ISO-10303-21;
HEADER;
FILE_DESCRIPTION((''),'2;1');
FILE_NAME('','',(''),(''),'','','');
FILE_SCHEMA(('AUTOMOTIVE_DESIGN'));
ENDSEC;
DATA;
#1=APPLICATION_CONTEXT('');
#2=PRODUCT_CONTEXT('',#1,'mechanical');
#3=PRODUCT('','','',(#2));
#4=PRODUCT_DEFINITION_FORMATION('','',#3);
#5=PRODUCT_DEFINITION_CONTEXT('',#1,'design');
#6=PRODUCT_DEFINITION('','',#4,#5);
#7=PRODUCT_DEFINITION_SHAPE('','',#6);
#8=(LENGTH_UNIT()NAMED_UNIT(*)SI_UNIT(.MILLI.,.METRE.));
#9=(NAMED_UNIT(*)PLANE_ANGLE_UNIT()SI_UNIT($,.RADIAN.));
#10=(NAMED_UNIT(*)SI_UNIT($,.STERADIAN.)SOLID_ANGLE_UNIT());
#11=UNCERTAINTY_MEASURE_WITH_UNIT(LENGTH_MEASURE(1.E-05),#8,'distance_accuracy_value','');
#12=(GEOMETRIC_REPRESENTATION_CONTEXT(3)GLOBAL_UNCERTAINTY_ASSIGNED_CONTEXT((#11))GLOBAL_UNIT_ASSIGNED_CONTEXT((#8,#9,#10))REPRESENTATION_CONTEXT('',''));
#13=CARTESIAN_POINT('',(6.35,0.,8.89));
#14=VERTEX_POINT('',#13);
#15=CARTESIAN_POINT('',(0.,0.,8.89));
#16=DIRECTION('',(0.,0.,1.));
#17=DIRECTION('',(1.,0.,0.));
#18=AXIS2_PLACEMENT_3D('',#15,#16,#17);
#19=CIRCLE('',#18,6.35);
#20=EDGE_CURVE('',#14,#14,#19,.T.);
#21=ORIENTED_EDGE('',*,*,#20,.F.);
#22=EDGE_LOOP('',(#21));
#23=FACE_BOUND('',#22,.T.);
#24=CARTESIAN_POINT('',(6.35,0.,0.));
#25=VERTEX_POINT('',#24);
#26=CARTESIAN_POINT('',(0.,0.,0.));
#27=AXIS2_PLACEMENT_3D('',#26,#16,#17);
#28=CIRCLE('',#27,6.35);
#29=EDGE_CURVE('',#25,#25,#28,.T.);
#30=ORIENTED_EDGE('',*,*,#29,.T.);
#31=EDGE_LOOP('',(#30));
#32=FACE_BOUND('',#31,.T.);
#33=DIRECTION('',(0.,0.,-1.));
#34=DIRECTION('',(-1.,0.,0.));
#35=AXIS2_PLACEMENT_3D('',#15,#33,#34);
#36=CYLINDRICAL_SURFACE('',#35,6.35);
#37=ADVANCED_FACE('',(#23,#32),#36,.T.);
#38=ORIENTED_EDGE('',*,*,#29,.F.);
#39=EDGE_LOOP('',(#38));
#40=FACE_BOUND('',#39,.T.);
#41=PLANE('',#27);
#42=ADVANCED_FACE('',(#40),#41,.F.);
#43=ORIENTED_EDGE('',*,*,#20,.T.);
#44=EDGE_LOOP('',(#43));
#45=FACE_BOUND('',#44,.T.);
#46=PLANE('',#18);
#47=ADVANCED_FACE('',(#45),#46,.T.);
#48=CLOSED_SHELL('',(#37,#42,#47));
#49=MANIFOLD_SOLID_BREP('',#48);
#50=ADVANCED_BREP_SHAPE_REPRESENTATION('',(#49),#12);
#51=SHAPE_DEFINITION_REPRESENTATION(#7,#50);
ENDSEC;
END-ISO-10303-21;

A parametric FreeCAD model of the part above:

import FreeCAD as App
import Part
import Sketcher

V = App.Vector
Q = App.Units.Quantity

doc = App.newDocument("Part")
body = doc.addObject("PartDesign::Body", "Body")

sketch1 = body.newObject("Sketcher::SketchObject", "Sketch")
sketch1.AttachmentSupport = (doc.getObject("XY_Plane"), [""])
sketch1.MapMode = "FlatFace"
sketch1.addGeometry(Part.Circle(V(0, 0, 0), V(0, 0, 1), 6), False)
sketch1.addConstraint([
    Sketcher.Constraint("Coincident", 0, 3, -1, 1),
    Sketcher.Constraint("Diameter", 0, Q("0.5 in")),
])
pad1 = body.newObject("PartDesign::Pad", "Pad")
pad1.Profile = sketch1
pad1.Length = Q("0.35 in")

doc.recompute()
